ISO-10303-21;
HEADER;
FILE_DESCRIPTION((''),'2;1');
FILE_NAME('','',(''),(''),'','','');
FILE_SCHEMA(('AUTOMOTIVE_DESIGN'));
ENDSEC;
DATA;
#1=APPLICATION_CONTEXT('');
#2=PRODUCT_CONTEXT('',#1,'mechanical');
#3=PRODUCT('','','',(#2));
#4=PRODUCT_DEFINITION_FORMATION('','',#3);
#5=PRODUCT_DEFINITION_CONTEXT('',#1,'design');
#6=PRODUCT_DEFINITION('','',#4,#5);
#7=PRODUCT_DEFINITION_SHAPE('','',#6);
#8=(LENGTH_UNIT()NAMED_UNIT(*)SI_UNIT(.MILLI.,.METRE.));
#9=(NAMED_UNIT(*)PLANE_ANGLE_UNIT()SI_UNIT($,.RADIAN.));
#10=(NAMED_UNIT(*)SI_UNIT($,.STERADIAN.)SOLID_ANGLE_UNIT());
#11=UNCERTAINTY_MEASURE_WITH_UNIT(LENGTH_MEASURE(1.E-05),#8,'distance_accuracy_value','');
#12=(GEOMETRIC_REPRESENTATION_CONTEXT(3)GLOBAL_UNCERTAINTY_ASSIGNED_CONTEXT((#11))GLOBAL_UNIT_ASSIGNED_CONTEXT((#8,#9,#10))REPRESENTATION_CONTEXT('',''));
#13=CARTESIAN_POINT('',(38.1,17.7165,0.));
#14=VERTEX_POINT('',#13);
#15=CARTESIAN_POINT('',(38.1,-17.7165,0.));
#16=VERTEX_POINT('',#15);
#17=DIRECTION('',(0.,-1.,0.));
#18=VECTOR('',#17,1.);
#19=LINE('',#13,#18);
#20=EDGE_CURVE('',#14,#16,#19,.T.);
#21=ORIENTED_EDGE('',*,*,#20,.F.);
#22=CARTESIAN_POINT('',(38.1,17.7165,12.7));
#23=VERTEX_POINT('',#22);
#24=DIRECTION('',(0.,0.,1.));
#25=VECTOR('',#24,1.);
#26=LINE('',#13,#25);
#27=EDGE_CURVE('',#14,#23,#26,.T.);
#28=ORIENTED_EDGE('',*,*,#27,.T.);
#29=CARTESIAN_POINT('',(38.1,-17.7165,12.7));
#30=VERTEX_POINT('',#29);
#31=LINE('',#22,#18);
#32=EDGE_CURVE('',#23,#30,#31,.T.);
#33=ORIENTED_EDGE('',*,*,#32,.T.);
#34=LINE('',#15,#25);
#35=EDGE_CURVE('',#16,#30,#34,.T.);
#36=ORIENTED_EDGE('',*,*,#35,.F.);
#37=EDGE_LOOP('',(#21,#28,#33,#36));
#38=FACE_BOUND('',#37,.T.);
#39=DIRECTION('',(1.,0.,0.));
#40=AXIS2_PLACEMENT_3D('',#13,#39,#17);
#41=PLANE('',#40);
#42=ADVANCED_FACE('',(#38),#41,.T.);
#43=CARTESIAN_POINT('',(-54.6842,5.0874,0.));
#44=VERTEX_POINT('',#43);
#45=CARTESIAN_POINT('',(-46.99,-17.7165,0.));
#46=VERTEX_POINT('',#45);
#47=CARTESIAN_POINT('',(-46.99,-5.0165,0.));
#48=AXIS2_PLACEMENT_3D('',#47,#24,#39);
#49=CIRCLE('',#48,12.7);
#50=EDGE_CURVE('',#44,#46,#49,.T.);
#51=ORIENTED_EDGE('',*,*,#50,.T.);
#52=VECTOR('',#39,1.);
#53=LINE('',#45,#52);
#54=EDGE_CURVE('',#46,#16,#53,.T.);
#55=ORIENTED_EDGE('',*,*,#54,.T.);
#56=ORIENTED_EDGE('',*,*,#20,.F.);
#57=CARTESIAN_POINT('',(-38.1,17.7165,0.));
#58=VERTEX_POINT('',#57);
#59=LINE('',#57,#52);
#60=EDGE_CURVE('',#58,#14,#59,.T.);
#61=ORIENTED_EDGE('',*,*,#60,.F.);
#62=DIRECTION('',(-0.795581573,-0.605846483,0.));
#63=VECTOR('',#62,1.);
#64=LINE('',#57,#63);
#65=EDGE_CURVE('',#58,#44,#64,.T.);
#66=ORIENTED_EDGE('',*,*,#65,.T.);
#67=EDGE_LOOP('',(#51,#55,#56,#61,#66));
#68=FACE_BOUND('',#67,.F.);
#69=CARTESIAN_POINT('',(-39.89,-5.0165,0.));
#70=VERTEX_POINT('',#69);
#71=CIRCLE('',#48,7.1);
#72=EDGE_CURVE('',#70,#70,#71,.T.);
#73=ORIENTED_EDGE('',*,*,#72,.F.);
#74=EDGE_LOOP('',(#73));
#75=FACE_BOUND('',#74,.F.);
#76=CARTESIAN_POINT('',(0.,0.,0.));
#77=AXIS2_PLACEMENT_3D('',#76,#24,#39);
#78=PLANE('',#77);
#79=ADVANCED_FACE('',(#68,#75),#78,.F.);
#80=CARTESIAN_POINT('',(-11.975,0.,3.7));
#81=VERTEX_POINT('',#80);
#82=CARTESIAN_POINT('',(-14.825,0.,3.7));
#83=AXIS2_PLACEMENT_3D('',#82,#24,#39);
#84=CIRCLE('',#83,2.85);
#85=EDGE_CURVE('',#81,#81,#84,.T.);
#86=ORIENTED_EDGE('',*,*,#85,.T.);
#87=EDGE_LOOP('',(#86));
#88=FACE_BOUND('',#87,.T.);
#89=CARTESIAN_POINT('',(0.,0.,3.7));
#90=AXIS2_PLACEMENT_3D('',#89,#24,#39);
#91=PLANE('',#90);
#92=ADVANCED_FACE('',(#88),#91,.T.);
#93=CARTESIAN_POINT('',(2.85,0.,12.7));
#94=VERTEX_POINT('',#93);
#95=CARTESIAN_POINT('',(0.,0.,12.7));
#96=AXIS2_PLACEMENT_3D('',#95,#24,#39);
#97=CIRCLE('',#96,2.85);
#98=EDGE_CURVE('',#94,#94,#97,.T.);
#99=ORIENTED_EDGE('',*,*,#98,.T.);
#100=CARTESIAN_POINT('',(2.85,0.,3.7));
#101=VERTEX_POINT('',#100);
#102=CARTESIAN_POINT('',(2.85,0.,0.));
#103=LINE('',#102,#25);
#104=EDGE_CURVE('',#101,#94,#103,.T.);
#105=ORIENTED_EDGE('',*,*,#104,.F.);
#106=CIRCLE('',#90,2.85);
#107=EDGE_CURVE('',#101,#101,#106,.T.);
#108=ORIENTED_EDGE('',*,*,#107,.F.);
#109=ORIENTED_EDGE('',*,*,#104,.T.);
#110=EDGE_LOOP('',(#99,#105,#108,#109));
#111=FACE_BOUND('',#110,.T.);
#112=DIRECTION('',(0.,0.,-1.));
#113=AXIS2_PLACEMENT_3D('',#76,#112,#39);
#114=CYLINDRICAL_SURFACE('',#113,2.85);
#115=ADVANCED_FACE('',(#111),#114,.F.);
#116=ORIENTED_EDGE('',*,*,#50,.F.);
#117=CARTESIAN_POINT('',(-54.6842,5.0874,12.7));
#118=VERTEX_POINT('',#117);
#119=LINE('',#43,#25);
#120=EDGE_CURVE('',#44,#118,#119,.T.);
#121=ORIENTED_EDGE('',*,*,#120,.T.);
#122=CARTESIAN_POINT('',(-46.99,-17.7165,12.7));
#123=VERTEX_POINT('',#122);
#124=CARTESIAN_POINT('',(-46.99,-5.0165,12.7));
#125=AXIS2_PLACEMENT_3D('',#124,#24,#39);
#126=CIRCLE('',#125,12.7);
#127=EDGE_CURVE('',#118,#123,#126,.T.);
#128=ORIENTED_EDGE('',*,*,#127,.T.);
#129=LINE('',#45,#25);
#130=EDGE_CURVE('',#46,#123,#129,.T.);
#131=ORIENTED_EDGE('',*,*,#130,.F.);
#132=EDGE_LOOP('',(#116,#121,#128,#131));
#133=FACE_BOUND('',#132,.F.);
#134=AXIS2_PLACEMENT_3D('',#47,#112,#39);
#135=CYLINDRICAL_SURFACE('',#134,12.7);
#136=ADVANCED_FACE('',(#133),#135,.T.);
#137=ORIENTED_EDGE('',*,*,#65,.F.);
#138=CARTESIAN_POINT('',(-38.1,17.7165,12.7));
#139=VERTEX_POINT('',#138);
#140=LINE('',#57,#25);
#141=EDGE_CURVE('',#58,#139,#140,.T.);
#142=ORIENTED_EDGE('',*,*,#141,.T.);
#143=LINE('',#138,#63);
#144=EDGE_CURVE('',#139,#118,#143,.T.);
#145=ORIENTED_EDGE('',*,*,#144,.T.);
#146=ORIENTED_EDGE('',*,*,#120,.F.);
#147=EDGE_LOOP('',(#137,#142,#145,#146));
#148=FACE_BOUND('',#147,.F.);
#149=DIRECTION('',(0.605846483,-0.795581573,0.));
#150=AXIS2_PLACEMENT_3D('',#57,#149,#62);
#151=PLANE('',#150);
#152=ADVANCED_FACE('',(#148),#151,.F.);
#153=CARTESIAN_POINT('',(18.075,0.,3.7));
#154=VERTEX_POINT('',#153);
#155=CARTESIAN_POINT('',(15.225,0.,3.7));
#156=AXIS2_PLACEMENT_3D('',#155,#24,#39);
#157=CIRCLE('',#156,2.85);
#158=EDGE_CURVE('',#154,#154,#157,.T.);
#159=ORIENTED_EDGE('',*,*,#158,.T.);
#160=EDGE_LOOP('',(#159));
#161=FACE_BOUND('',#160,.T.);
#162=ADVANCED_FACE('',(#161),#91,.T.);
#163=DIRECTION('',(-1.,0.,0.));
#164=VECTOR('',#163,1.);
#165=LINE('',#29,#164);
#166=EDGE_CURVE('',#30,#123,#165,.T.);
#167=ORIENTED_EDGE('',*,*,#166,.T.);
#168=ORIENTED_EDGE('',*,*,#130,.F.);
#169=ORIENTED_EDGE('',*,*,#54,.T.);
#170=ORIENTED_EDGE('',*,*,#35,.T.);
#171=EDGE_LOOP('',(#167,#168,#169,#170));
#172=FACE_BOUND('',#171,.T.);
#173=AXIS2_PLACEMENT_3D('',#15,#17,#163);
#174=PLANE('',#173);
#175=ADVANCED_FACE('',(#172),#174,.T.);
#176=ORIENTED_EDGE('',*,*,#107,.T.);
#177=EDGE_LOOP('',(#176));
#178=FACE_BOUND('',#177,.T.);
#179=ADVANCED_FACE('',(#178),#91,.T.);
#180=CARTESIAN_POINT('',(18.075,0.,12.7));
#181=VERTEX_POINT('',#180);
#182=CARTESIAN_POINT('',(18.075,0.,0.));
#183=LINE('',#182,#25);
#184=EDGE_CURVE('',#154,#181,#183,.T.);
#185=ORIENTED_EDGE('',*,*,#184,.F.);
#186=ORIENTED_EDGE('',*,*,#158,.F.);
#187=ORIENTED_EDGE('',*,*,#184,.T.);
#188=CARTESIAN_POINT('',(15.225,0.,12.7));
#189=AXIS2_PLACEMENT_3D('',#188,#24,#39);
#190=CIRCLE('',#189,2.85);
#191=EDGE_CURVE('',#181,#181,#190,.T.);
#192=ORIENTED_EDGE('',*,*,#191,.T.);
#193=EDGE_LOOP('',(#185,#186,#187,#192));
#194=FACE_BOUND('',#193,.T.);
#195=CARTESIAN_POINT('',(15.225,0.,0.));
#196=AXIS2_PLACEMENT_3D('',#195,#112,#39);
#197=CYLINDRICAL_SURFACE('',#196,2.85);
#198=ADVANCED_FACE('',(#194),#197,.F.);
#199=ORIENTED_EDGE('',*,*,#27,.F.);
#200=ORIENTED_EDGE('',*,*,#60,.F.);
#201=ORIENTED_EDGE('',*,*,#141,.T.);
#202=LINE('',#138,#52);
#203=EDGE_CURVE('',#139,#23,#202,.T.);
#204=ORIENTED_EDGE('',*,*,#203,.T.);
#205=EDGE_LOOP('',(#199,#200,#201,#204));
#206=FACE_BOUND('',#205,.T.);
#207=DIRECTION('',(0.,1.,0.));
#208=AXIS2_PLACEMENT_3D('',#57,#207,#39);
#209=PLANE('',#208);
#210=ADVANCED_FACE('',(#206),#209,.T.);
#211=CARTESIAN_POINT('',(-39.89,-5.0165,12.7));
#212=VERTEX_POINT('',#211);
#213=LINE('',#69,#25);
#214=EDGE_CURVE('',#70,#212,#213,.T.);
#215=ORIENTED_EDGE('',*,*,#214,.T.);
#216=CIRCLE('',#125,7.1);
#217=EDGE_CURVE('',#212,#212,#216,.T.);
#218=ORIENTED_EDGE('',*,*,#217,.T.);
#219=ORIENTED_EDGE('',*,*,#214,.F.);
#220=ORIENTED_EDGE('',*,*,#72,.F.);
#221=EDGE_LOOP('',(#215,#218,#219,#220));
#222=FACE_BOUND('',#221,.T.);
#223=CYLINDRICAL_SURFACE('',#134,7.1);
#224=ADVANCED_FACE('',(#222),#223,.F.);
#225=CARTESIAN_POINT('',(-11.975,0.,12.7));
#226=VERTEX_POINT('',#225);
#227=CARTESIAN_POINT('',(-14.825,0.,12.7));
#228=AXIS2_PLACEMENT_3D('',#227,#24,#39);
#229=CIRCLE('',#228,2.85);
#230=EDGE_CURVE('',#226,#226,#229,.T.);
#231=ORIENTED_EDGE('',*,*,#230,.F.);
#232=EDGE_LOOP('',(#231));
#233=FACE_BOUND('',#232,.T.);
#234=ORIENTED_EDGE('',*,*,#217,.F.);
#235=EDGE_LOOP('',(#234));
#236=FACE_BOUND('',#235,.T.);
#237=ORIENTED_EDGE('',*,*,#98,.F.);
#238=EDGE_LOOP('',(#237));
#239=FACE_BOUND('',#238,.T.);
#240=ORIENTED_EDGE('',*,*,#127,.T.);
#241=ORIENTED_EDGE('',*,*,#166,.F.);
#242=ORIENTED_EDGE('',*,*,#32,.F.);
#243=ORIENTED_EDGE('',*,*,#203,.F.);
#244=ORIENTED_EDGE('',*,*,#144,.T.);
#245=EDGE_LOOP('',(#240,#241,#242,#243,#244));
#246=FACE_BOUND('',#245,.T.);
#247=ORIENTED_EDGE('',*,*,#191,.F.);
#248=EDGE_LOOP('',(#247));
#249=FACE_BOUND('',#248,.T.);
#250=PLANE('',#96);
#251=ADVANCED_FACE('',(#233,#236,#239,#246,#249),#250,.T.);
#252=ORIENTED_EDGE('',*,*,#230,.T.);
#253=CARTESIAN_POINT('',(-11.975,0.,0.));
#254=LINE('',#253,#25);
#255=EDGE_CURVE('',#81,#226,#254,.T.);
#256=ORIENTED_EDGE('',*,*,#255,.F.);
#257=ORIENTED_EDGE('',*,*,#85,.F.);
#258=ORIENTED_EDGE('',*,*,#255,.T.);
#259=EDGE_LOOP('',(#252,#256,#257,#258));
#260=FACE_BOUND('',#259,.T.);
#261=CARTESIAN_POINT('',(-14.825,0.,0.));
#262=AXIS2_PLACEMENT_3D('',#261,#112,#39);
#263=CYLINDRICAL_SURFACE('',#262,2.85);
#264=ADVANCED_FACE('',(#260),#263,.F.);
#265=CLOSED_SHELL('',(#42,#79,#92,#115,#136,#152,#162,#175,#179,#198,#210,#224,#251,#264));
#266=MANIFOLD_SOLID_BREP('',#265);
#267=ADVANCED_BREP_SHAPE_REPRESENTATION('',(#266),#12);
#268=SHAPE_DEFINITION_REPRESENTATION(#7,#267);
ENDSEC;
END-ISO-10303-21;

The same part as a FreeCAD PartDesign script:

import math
import FreeCAD as App
import Part
import Sketcher

V = App.Vector
Q = App.Units.Quantity

doc = App.newDocument("Part")
body = doc.addObject("PartDesign::Body", "Body")

# Sketch on XY plane
sketch1 = body.newObject("Sketcher::SketchObject", "Sketch")
sketch1.AttachmentSupport = (doc.getObject("XY_Plane"), [""])
sketch1.MapMode = "FlatFace"
sketch1.addGeometry(Part.LineSegment(V(38.1, -17.7, 0), V(38.1, 17.7, 0)), False)
sketch1.addGeometry(Part.LineSegment(V(38.1, 17.7, 0), V(-38.1, 17.7, 0)), False)
sketch1.addGeometry(Part.LineSegment(V(-38.1, 17.7, 0), V(-54.7, 5.1, 0)), False)
sketch1.addGeometry(Part.ArcOfCircle(Part.Circle(V(-47, -5, 0), V(0, 0, 1), 12.7), math.radians(127), math.radians(270)), False)
sketch1.addGeometry(Part.LineSegment(V(-47, -17.7, 0), V(38.1, -17.7, 0)), False)
sketch1.addGeometry(Part.Circle(V(-14.8, 0, 0), V(0, 0, 1), 2.9), False)
sketch1.addGeometry(Part.Circle(V(0, 0, 0), V(0, 0, 1), 2.9), False)
sketch1.addGeometry(Part.Circle(V(15.2, 0, 0), V(0, 0, 1), 2.9), False)
sketch1.addGeometry(Part.Circle(V(-47, -5, 0), V(0, 0, 1), 7.1), False)
sketch1.addConstraint(Sketcher.Constraint("Coincident", 0, 2, 1, 1))
sketch1.addConstraint(Sketcher.Constraint("Coincident", 1, 2, 2, 1))
sketch1.addConstraint(Sketcher.Constraint("Tangent", 2, 2, 3, 1))
sketch1.addConstraint(Sketcher.Constraint("Tangent", 3, 2, 4, 1))
sketch1.addConstraint(Sketcher.Constraint("Coincident", 4, 2, 0, 1))
sketch1.addConstraint(Sketcher.Constraint("Vertical", 0))
sketch1.addConstraint(Sketcher.Constraint("Horizontal", 1))
sketch1.addConstraint(Sketcher.Constraint("Horizontal", 4))
sketch1.addConstraint(Sketcher.Constraint("Coincident", 6, 3, -1, 1))
sketch1.addConstraint(Sketcher.Constraint("Coincident", 8, 3, 3, 3))
sketch1.addConstraint(Sketcher.Constraint("Equal", 5, 6))
sketch1.addConstraint(Sketcher.Constraint("Equal", 6, 7))
sketch1.addConstraint(Sketcher.Constraint("Symmetric", 1, 2, 4, 2, -1, 1))
sketch1.addConstraint(Sketcher.Constraint("PointOnObject", 5, 3, -1))
sketch1.addConstraint(Sketcher.Constraint("PointOnObject", 7, 3, -1))
sketch1.addConstraint(Sketcher.Constraint("Radius", 3, Q("0.5 in")))
sketch1.addConstraint(Sketcher.Constraint("DistanceX", 1, 2, 1, 1, Q("3 in")))
sketch1.addConstraint(Sketcher.Constraint("Diameter", 5, Q("0.2244 in")))
sketch1.addConstraint(Sketcher.Constraint("Diameter", 8, Q("14.2 mm")))
sketch1.addConstraint(Sketcher.Constraint("DistanceY", 0, 1, 0, 2, Q("1.395 in")))
sketch1.addConstraint(Sketcher.Constraint("DistanceX", 3, 3, 1, 2, Q("0.35 in")))
sketch1.addConstraint(Sketcher.Constraint("DistanceX", -1, 1, 7, 3, Q("0.5994 in")))
sketch1.addConstraint(Sketcher.Constraint("DistanceX", 5, 3, -1, 1, Q("14.825 mm")))
pad1 = body.newObject("PartDesign::Pad", "Pad")
pad1.Profile = sketch1
pad1.Length = Q("0.5 in")

# Sketch on XY plane
sketch2 = body.newObject("Sketcher::SketchObject", "Sketch001")
sketch2.AttachmentSupport = (doc.getObject("XY_Plane"), [""])
sketch2.MapMode = "FlatFace"
sketch2.addGeometry(Part.Circle(V(-14.8, 0, 0), V(0, 0, 1), 2.9), False)
sketch2.addGeometry(Part.Circle(V(0, 0, 0), V(0, 0, 1), 2.9), False)
sketch2.addGeometry(Part.Circle(V(15.2, 0, 0), V(0, 0, 1), 2.9), False)
sketch2.addConstraint(Sketcher.Constraint("Coincident", 1, 3, -1, 1))
sketch2.addConstraint(Sketcher.Constraint("Equal", 0, 1))
sketch2.addConstraint(Sketcher.Constraint("Equal", 1, 2))
sketch2.addConstraint(Sketcher.Constraint("PointOnObject", 0, 3, -1))
sketch2.addConstraint(Sketcher.Constraint("PointOnObject", 2, 3, -1))
sketch2.addConstraint(Sketcher.Constraint("Diameter", 0, Q("0.2244 in")))
sketch2.addConstraint(Sketcher.Constraint("DistanceX", -1, 1, 2, 3, Q("0.5994 in")))
sketch2.addConstraint(Sketcher.Constraint("DistanceX", 0, 3, -1, 1, Q("14.825 mm")))
pad2 = body.newObject("PartDesign::Pad", "Pad001")
pad2.Profile = sketch2
pad2.Length = 3.7

doc.recompute()
